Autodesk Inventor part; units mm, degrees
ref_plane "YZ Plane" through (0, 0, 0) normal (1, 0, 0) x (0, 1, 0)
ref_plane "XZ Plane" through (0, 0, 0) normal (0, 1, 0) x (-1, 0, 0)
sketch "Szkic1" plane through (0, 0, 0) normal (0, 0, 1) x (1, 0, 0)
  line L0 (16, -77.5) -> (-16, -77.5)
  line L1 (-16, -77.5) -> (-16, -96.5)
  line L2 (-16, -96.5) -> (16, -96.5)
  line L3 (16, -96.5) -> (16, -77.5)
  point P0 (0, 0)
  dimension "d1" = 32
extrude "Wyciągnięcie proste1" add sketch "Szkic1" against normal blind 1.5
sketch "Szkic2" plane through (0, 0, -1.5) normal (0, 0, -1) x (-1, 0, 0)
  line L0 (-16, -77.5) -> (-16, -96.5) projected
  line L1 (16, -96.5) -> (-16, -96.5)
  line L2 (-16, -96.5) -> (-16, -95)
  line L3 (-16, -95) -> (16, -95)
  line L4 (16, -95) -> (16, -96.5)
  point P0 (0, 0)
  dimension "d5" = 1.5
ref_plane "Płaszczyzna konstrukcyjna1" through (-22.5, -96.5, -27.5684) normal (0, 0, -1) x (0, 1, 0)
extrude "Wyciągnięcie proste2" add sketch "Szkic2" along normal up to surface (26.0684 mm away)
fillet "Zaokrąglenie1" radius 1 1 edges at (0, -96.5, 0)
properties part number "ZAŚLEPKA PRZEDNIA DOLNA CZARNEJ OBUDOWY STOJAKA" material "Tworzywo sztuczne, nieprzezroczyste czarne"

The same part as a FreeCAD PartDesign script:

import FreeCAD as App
import Part
import Sketcher


def edges_at(feature, points):
    """Names of the edges that pass closest to the given points."""
    edges = feature.Shape.Edges
    near = lambda p: min(range(len(edges)), key=lambda i: edges[i].distToShape(Part.Vertex(*p))[0])
    return sorted({f"Edge{near(p) + 1}" for p in points})


def add_polygon(sketch, points):
    """Adds a closed chain of lines whose ends are joined by coincident constraints."""
    first, n = sketch.GeometryCount, len(points)
    for a, b in zip(points, points[1:] + points[:1]):
        sketch.addGeometry(Part.LineSegment(App.Vector(*a, 0), App.Vector(*b, 0)), False)
    for i in range(n):
        sketch.addConstraint(Sketcher.Constraint("Coincident", first + i, 2, first + (i + 1) % n, 1))

doc = App.newDocument("Part")
params = doc.addObject("Spreadsheet::Sheet", "Params")
for row, (alias, value) in enumerate([
    ("sketch1_width", "32 mm"),
    ("sketch1_height", "19 mm"),
    ("pad1_length", "1.5 mm"),
    ("sketch2_height", "1.5 mm"),
    ("sketch2_width", "32 mm"),
    ("pad2_length", "26.0684 mm"),
    ("fillet_radius", "1 mm"),
], start=1):
    params.set(f"A{row}", alias)
    params.set(f"B{row}", "=" + value)
    params.setAlias(f"B{row}", alias)

body = doc.addObject("PartDesign::Body", "Body")

sketch1 = body.newObject("Sketcher::SketchObject", "Sketch")
sketch1.AttachmentSupport = (doc.getObject("XY_Plane"), [""])
sketch1.MapMode = "FlatFace"
add_polygon(sketch1, [(16, -96), (16, -78), (-16, -78), (-16, -96)])
sketch1.addConstraint([
    Sketcher.Constraint("Vertical", 0),
    Sketcher.Constraint("Horizontal", 1),
    Sketcher.Constraint("Vertical", 2),
    Sketcher.Constraint("Horizontal", 3),
    Sketcher.Constraint("DistanceX", 1, 2, 1, 1, 32.0),
    Sketcher.Constraint("DistanceY", 0, 1, 0, 2, 19.0),
    Sketcher.Constraint("DistanceX", -1, 1, 0, 2, 16.0),
    Sketcher.Constraint("DistanceY", 0, 2, -1, 1, 77.5),
])
sketch1.setExpression("Constraints[8]", "Params.sketch1_width")
sketch1.setExpression("Constraints[9]", "Params.sketch1_height")
pad1 = body.newObject("PartDesign::Pad", "Pad")
pad1.Profile = sketch1
pad1.setExpression("Length", "Params.pad1_length")
pad1.Reversed = True

sketch2 = body.newObject("Sketcher::SketchObject", "Sketch001")
sketch2.AttachmentSupport = (doc.getObject("XY_Plane"), [""])
sketch2.MapMode = "FlatFace"
sketch2.AttachmentOffset = App.Placement(App.Vector(0, 0, -1.5), App.Rotation())
add_polygon(sketch2, [(-16, -95), (16, -95), (16, -96.5), (-16, -96.5)])
sketch2.addConstraint([
    Sketcher.Constraint("Horizontal", 0),
    Sketcher.Constraint("Vertical", 1),
    Sketcher.Constraint("Horizontal", 2),
    Sketcher.Constraint("Vertical", 3),
    Sketcher.Constraint("DistanceY", 1, 2, 1, 1, 1.5),
    Sketcher.Constraint("DistanceX", 0, 1, 0, 2, 32.0),
    Sketcher.Constraint("DistanceX", -1, 1, 0, 2, 16.0),
    Sketcher.Constraint("DistanceY", 0, 2, -1, 1, 95.0),
])
sketch2.setExpression("Constraints[8]", "Params.sketch2_height")
sketch2.setExpression("Constraints[9]", "Params.sketch2_width")
pad2 = body.newObject("PartDesign::Pad", "Pad001")
pad2.Profile = sketch2
pad2.setExpression("Length", "Params.pad2_length")
pad2.Reversed = True
doc.recompute()

fillet = body.newObject("PartDesign::Fillet", "Fillet")
fillet.Base = (pad2, edges_at(pad2, [(0, -96.5, 0)]))
fillet.setExpression("Radius", "Params.fillet_radius")

doc.recompute()
